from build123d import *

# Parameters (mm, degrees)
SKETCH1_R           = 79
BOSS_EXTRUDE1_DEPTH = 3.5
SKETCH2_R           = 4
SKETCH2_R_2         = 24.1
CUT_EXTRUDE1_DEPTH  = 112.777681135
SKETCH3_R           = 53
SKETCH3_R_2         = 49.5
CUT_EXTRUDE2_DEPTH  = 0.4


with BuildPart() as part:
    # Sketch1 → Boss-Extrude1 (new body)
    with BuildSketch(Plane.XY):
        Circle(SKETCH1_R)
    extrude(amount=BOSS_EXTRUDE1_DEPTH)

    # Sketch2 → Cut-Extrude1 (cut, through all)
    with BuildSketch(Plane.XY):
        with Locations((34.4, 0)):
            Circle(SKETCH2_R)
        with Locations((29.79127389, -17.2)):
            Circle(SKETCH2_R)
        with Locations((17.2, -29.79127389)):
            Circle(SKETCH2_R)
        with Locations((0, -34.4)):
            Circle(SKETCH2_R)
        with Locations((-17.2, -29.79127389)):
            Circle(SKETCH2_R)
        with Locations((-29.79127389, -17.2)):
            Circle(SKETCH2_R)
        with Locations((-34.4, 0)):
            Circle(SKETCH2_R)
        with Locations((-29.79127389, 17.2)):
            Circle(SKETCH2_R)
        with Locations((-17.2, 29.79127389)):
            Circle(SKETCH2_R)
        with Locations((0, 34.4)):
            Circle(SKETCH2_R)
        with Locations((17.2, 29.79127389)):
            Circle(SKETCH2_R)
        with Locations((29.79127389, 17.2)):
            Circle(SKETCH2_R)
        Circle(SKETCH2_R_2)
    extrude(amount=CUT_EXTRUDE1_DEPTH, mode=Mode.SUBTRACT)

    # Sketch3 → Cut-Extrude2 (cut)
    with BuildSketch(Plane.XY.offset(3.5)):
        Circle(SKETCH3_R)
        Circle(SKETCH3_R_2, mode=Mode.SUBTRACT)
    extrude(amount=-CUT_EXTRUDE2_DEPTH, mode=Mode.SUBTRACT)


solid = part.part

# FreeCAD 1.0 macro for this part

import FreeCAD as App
import Part
import Sketcher

V = App.Vector

doc = App.newDocument("Part")
body = doc.addObject("PartDesign::Body", "Body")

# Sketch on XY plane
sketch1 = body.newObject("Sketcher::SketchObject", "Sketch")
sketch1.AttachmentSupport = (doc.getObject("XY_Plane"), [""])
sketch1.MapMode = "FlatFace"
sketch1.addGeometry(Part.Circle(V(0, 0, 0), V(0, 0, 1), 79), False)
sketch1.addConstraint([
    Sketcher.Constraint("Coincident", 0, 3, -1, 1),
    Sketcher.Constraint("Diameter", 0, 158.0),
])
pad1 = body.newObject("PartDesign::Pad", "Pad")
pad1.Profile = sketch1
pad1.Length = 3.5

# Sketch on XY plane
sketch2 = body.newObject("Sketcher::SketchObject", "Sketch001")
sketch2.AttachmentSupport = (doc.getObject("XY_Plane"), [""])
sketch2.MapMode = "FlatFace"
sketch2.addGeometry([
    Part.Circle(V(34.4, 0, 0), V(0, 0, 1), 4),  # 0
    Part.Circle(V(29.791274, -17.2, 0), V(0, 0, 1), 4),  # 1
    Part.Circle(V(17.2, -29.791274, 0), V(0, 0, 1), 4),  # 2
    Part.Circle(V(0, -34.4, 0), V(0, 0, 1), 4),  # 3
    Part.Circle(V(-17.2, -29.791274, 0), V(0, 0, 1), 4),  # 4
    Part.Circle(V(-29.791274, -17.2, 0), V(0, 0, 1), 4),  # 5
    Part.Circle(V(-34.4, 0, 0), V(0, 0, 1), 4),  # 6
    Part.Circle(V(-29.791274, 17.2, 0), V(0, 0, 1), 4),  # 7
    Part.Circle(V(-17.2, 29.791274, 0), V(0, 0, 1), 4),  # 8
    Part.Circle(V(0, 34.4, 0), V(0, 0, 1), 4),  # 9
    Part.Circle(V(17.2, 29.791274, 0), V(0, 0, 1), 4),  # 10
    Part.Circle(V(29.791274, 17.2, 0), V(0, 0, 1), 4),  # 11
    Part.Circle(V(0, 0, 0), V(0, 0, 1), 24.1),  # 12
], False)
sketch2.addConstraint([
    Sketcher.Constraint("Coincident", 12, 3, -1, 1),
    Sketcher.Constraint("Equal", 0, 1),
    Sketcher.Constraint("Equal", 1, 2),
    Sketcher.Constraint("Equal", 2, 3),
    Sketcher.Constraint("Equal", 3, 4),
    Sketcher.Constraint("Equal", 4, 5),
    Sketcher.Constraint("Equal", 5, 6),
    Sketcher.Constraint("Equal", 6, 7),
    Sketcher.Constraint("Equal", 7, 8),
    Sketcher.Constraint("Equal", 8, 9),
    Sketcher.Constraint("Equal", 9, 10),
    Sketcher.Constraint("Equal", 10, 11),
    Sketcher.Constraint("Symmetric", 0, 3, 6, 3, -1, 1),
    Sketcher.Constraint("Symmetric", 1, 3, 7, 3, -1, 1),
    Sketcher.Constraint("Symmetric", 2, 3, 8, 3, -1, 1),
    Sketcher.Constraint("Symmetric", 3, 3, 9, 3, -1, 1),
    Sketcher.Constraint("Symmetric", 4, 3, 10, 3, -1, 1),
    Sketcher.Constraint("Symmetric", 5, 3, 11, 3, -1, 1),
    Sketcher.Constraint("Symmetric", 2, 3, 4, 3, -2),
    Sketcher.Constraint("Symmetric", 1, 3, 5, 3, -2),
    Sketcher.Constraint("PointOnObject", 0, 3, -1),
    Sketcher.Constraint("PointOnObject", 3, 3, -2),
    Sketcher.Constraint("Diameter", 0, 8.0),
    Sketcher.Constraint("Diameter", 12, 48.2),
    Sketcher.Constraint("DistanceX", -1, 1, 0, 3, 34.4),
    Sketcher.Constraint("DistanceY", 1, 3, -1, 1, 17.2),
    Sketcher.Constraint("DistanceX", -1, 1, 2, 3, 17.2),
    Sketcher.Constraint("DistanceY", 3, 3, -1, 1, 34.4),
    Sketcher.Constraint("DistanceX", -1, 1, 1, 3, 29.791274),
    Sketcher.Constraint("DistanceY", 2, 3, -1, 1, 29.791274),
])
pocket1 = body.newObject("PartDesign::Pocket", "Pocket")
pocket1.Profile = sketch2
pocket1.Type = "ThroughAll"
pocket1.Reversed = True

# Sketch on XY plane
sketch3 = body.newObject("Sketcher::SketchObject", "Sketch002")
sketch3.AttachmentSupport = (doc.getObject("XY_Plane"), [""])
sketch3.MapMode = "FlatFace"
sketch3.AttachmentOffset = App.Placement(V(0, 0, 3.5), App.Rotation())
sketch3.addGeometry([
    Part.Circle(V(0, 0, 0), V(0, 0, 1), 53),
    Part.Circle(V(0, 0, 0), V(0, 0, 1), 49.5),
], False)
sketch3.addConstraint([
    Sketcher.Constraint("Coincident", 0, 3, -1, 1),
    Sketcher.Constraint("Coincident", 1, 3, -1, 1),
    Sketcher.Constraint("Diameter", 0, 106.0),
    Sketcher.Constraint("Diameter", 1, 99.0),
])
pocket2 = body.newObject("PartDesign::Pocket", "Pocket001")
pocket2.Profile = sketch3
pocket2.Length = 0.4

doc.recompute()
